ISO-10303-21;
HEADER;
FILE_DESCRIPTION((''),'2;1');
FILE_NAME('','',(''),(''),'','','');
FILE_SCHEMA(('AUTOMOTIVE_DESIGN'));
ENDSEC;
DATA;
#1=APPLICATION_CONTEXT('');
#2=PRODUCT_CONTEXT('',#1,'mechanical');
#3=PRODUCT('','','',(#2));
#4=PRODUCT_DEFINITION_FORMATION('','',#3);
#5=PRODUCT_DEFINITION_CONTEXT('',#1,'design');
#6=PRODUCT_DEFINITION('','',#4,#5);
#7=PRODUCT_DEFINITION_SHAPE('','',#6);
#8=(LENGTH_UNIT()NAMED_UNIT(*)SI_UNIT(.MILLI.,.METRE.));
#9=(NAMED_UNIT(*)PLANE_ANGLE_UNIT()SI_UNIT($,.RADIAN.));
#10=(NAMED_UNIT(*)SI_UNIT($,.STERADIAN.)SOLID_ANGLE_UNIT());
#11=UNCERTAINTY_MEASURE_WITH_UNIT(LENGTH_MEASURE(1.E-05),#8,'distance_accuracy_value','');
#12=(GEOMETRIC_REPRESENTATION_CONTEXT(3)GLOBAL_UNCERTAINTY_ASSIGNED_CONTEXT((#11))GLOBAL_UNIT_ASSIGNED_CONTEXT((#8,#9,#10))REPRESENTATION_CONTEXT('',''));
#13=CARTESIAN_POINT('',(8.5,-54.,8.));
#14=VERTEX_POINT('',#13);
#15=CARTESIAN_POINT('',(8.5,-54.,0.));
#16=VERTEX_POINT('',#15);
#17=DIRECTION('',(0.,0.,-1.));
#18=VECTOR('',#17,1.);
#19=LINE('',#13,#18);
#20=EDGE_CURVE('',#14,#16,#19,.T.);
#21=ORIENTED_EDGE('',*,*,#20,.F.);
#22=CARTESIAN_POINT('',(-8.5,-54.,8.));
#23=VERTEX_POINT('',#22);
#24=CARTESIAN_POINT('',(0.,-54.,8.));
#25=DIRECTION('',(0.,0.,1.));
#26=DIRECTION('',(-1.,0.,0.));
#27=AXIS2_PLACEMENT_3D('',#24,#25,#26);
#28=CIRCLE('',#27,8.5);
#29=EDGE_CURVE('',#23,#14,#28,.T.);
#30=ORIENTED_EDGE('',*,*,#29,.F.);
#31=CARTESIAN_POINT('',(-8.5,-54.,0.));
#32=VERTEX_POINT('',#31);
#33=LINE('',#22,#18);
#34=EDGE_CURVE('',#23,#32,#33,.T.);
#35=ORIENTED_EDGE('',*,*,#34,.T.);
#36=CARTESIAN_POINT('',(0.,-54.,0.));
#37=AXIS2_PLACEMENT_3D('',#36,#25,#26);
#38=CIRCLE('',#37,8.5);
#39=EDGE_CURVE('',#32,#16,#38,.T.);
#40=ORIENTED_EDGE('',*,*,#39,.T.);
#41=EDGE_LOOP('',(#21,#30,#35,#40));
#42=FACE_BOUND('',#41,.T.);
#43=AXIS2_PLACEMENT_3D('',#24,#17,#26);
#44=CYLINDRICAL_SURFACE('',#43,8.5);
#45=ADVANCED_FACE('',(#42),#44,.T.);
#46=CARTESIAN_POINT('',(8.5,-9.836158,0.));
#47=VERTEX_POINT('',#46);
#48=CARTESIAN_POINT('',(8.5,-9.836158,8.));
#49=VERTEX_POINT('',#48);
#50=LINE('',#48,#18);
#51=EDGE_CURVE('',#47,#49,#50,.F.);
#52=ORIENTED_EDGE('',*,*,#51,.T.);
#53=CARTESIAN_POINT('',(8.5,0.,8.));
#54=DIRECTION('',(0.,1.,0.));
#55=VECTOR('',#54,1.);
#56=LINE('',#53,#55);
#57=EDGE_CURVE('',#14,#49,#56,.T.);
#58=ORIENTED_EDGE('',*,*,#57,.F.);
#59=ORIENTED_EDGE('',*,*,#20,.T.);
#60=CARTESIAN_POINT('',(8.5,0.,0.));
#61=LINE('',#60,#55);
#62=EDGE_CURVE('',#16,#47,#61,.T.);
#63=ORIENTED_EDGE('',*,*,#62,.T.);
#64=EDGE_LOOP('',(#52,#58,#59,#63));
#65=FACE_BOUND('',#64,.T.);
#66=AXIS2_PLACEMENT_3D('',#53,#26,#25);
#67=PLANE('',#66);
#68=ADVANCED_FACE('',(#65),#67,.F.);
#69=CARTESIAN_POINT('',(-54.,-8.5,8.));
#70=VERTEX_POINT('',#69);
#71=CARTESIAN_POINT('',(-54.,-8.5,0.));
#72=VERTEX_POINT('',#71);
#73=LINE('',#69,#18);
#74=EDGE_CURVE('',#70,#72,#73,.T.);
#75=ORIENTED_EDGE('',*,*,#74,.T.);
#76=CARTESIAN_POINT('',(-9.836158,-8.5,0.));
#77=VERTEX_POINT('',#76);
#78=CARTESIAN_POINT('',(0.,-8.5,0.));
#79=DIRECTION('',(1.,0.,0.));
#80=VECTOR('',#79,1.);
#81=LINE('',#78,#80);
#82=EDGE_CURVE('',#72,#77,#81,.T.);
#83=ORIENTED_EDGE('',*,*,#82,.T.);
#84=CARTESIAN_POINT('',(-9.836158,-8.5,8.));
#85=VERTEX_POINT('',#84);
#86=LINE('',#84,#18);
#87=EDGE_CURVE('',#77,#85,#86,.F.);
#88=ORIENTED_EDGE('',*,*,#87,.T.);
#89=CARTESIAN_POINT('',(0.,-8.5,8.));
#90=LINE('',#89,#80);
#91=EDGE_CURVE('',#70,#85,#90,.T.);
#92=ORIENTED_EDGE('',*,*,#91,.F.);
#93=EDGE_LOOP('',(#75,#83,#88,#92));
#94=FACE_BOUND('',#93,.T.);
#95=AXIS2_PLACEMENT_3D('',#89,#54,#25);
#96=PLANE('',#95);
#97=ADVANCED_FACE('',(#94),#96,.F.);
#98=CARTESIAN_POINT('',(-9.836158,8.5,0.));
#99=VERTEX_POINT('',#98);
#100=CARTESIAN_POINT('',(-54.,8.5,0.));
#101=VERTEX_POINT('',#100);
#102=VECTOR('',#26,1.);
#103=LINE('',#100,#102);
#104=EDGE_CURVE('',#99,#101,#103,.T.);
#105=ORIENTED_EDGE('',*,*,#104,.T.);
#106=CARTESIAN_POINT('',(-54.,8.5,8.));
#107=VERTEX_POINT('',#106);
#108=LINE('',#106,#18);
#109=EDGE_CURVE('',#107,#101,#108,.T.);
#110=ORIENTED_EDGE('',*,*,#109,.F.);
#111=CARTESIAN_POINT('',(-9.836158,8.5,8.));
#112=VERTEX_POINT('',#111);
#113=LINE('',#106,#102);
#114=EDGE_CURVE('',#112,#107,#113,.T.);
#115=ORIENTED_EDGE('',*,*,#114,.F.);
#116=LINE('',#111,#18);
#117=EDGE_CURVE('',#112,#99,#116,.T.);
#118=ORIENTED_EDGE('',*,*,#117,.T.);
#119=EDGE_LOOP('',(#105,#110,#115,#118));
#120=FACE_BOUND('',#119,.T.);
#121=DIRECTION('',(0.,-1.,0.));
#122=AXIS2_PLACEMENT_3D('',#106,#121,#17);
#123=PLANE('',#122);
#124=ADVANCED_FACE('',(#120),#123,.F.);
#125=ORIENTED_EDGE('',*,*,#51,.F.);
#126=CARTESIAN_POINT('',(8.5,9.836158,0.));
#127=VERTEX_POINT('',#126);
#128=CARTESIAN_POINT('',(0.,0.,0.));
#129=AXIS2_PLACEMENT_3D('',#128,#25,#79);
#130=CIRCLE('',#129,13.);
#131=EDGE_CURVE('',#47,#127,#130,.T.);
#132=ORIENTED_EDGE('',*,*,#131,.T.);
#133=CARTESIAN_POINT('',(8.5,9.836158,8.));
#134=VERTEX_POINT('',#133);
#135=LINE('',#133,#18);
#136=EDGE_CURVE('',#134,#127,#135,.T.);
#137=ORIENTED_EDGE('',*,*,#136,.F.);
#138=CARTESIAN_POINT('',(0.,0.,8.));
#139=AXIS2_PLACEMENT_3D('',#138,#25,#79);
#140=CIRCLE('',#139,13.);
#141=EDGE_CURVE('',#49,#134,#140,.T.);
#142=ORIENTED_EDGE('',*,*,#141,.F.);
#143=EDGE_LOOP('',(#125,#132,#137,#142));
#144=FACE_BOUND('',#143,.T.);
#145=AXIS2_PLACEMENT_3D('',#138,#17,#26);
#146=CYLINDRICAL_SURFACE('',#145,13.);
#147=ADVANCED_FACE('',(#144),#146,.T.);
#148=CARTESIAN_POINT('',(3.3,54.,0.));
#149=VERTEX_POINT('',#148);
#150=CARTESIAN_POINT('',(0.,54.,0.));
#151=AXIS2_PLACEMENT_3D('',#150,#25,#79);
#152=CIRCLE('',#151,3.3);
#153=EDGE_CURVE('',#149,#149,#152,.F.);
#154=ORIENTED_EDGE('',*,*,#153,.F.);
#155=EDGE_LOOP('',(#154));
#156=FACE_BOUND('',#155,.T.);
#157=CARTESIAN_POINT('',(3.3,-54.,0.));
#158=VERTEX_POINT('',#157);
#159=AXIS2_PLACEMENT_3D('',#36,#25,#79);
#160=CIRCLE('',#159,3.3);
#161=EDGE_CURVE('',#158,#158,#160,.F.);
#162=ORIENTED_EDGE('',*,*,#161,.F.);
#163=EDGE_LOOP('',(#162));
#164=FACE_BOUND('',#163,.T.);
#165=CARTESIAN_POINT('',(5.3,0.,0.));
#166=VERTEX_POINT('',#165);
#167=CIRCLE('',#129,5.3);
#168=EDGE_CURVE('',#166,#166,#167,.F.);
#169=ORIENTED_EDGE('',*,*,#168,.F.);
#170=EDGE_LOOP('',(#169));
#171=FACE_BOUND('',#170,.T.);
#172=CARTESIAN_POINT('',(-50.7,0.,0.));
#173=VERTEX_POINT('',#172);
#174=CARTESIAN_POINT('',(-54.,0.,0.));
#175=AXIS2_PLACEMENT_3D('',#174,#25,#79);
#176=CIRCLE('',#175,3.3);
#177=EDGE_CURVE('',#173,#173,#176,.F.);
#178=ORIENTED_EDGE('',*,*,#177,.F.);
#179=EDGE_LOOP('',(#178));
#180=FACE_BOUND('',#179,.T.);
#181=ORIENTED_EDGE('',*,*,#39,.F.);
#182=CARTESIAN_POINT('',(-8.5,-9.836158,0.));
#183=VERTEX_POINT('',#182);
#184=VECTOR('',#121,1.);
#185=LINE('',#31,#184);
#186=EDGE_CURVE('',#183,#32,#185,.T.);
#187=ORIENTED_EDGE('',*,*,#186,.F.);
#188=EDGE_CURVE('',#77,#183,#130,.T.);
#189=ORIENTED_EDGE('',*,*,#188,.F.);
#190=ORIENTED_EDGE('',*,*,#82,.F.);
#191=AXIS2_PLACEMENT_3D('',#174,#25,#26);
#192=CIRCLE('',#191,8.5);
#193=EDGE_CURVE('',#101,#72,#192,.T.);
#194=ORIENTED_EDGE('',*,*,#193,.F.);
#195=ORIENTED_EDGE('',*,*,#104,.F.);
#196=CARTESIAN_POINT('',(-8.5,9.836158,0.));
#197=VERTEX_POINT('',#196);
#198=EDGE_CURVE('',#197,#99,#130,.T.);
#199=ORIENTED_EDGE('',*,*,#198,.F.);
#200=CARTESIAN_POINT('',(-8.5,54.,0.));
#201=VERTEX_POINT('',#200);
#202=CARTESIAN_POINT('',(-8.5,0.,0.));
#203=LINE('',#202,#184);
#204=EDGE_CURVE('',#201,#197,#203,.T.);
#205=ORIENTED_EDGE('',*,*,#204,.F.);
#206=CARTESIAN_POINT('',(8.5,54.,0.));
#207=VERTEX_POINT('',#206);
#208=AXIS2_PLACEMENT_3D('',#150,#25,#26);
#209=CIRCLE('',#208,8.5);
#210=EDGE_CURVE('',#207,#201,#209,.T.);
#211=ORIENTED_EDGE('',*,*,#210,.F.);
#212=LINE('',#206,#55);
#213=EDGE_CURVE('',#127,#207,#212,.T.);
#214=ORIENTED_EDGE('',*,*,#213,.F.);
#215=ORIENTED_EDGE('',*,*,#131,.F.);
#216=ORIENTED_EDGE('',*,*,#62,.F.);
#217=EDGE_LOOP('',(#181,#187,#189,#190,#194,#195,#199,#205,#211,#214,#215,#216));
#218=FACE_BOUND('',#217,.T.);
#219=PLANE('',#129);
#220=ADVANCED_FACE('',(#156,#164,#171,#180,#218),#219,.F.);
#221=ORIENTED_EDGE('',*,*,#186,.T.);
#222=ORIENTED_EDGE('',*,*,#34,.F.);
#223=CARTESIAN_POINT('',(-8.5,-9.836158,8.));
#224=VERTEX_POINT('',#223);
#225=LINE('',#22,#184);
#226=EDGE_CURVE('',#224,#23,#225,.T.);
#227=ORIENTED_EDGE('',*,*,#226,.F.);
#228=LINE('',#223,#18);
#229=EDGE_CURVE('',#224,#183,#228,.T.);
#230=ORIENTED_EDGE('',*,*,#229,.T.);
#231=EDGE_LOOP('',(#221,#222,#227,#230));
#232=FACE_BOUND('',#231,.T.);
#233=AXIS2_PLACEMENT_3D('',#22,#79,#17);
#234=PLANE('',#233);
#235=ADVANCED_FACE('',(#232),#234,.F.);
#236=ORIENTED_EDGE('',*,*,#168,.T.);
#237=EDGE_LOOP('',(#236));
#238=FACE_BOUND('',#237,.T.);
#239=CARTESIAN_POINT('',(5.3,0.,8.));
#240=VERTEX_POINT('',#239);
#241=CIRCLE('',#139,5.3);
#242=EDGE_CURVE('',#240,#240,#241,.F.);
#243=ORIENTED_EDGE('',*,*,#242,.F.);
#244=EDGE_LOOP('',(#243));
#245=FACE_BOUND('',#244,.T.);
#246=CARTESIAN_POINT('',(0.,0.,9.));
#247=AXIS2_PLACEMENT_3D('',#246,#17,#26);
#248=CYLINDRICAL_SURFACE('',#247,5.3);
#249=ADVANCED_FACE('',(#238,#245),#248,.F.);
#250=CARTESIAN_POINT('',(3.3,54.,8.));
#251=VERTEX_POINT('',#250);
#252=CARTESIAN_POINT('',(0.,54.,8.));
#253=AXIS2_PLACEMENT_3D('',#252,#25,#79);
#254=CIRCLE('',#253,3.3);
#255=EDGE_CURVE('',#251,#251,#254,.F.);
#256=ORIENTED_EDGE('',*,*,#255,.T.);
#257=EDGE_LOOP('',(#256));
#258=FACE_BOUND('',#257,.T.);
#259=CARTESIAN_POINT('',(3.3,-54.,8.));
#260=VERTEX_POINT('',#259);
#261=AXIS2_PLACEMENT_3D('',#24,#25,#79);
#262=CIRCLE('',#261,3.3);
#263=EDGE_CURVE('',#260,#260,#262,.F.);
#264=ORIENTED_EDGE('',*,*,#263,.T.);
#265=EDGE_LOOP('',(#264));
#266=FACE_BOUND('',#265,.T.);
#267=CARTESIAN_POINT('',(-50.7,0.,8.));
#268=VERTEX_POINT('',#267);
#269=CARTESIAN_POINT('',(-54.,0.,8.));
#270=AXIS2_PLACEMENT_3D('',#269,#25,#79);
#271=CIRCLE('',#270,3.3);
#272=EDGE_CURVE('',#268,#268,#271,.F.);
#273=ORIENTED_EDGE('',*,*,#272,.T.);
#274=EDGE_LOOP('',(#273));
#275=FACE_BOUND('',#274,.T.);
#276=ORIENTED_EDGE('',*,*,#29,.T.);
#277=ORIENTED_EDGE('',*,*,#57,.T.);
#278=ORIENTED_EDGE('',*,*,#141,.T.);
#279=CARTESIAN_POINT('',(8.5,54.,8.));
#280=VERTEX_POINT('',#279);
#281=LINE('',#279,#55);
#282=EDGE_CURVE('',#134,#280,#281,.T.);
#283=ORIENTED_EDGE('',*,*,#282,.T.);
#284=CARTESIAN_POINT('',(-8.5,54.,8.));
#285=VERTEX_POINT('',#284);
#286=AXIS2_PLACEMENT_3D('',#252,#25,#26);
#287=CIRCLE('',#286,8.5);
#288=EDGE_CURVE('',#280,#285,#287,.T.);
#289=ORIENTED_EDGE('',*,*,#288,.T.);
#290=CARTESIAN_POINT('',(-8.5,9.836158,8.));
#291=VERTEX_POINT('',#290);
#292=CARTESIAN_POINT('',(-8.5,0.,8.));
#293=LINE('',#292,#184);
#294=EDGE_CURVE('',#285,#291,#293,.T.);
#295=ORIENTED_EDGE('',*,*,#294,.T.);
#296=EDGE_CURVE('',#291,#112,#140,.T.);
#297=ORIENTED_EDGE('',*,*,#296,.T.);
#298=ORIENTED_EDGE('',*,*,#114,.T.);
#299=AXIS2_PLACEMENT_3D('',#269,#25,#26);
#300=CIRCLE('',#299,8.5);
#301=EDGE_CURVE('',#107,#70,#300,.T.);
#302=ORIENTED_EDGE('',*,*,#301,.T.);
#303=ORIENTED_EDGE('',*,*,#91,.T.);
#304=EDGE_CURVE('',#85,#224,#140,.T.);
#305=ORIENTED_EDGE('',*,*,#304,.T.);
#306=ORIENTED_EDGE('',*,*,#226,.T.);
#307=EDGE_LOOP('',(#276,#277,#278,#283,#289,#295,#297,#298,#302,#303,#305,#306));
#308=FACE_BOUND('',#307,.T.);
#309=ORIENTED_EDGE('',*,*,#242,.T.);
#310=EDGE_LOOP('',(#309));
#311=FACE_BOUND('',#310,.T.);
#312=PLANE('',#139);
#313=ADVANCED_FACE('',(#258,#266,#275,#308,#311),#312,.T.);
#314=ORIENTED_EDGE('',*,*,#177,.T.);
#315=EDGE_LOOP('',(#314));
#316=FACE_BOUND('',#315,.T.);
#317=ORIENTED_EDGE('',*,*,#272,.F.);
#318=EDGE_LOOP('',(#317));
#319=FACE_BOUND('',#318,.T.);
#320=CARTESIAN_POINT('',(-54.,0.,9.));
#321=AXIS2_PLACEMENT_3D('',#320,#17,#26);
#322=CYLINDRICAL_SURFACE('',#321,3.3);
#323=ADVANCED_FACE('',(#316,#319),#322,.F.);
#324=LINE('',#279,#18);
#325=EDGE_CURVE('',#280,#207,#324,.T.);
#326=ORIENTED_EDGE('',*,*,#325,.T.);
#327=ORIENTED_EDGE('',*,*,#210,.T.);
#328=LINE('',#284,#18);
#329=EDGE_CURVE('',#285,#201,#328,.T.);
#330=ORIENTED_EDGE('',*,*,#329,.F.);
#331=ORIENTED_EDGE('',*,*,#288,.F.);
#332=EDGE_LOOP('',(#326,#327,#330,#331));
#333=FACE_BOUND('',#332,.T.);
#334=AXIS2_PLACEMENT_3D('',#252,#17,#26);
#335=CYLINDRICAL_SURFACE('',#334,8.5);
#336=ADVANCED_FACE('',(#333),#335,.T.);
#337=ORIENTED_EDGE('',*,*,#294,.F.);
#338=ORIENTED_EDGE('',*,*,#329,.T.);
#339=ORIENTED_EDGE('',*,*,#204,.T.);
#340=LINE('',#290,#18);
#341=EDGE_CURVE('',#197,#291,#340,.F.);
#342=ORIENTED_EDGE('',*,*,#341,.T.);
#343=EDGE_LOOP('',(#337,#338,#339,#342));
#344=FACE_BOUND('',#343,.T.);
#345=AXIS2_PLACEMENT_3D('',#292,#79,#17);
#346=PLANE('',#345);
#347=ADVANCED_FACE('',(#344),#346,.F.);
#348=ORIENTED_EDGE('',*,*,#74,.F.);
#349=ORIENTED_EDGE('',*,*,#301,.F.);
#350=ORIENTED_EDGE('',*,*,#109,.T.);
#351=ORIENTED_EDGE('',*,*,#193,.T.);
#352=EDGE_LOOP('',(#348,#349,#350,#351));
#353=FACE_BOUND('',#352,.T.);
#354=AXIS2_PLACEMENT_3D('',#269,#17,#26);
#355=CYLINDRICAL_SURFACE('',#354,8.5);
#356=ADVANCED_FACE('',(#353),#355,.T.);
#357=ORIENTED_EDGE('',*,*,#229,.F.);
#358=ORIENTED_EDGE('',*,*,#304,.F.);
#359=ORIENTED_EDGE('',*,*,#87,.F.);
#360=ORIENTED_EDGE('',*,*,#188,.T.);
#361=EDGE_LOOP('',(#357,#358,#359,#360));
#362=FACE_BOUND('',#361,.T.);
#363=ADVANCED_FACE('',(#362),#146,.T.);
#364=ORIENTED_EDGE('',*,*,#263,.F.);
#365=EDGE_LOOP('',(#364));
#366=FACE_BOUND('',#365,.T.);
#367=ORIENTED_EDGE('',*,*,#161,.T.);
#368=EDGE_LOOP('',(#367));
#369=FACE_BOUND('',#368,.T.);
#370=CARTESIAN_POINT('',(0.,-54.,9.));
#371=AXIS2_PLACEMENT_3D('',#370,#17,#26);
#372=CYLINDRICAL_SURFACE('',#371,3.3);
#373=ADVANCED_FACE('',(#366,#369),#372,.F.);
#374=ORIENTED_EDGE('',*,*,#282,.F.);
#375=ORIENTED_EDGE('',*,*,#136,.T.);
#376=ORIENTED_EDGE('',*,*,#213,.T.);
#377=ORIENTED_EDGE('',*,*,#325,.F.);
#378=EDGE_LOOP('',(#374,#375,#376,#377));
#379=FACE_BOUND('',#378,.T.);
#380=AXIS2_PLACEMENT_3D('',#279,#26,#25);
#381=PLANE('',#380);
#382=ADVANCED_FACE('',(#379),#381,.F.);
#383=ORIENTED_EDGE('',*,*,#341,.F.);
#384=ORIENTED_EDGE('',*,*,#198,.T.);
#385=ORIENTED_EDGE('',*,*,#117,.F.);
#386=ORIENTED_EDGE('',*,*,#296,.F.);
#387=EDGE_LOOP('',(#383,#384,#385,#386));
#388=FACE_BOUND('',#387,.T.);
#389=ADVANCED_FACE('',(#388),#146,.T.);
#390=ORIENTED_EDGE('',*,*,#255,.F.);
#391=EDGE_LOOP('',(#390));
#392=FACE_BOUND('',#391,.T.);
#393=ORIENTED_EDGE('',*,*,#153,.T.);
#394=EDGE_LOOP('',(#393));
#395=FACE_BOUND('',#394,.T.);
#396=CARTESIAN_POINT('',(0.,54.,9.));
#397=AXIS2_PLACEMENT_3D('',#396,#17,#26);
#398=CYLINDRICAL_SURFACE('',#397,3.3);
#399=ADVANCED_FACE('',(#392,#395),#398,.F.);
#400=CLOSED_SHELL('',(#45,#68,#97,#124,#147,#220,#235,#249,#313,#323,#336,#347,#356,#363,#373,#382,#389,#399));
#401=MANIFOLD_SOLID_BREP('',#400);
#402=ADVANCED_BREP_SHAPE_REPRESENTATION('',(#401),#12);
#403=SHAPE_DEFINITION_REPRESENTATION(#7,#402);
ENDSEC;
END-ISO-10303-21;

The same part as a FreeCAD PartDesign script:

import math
import FreeCAD as App
import Part
import Sketcher

V = App.Vector

doc = App.newDocument("Part")
body = doc.addObject("PartDesign::Body", "Body")

# Sketch on XY plane
sketch1 = doc.addObject("Sketcher::SketchObject", "Sketch")
body.addObject(sketch1)
sketch1.AttachmentSupport = (doc.XY_Plane, [""])
sketch1.MapMode = "FlatFace"
sketch1.addGeometry(Part.Circle(V(0, 0, 0), V(0, 0, 1), 13), False)
sketch1.addConstraint([
    Sketcher.Constraint("Coincident", 0, 3, -1, 1),
    Sketcher.Constraint("Diameter", 0, 26.0),
])
pad1 = doc.addObject("PartDesign::Pad", "Pad")
body.addObject(pad1)
pad1.Profile = sketch1
pad1.Length = 8

# Sketch on XY plane
sketch2 = doc.addObject("Sketcher::SketchObject", "Sketch001")
body.addObject(sketch2)
sketch2.AttachmentSupport = (doc.XY_Plane, [""])
sketch2.MapMode = "FlatFace"
sketch2.addGeometry([
    Part.LineSegment(V(-8, 54, 0), V(-8, 0, 0)),
    Part.ArcOfCircle(Part.Circle(V(0, 0, 0), V(0, 0, 1), 8), math.radians(180), math.radians(360)),
    Part.LineSegment(V(8, 0, 0), V(8, 54, 0)),
    Part.ArcOfCircle(Part.Circle(V(0, 54, 0), V(0, 0, 1), 8), math.radians(0), math.radians(180)),
], False)
sketch2.addConstraint([
    Sketcher.Constraint("Tangent", 0, 2, 1, 1),
    Sketcher.Constraint("Tangent", 1, 2, 2, 1),
    Sketcher.Constraint("Tangent", 2, 2, 3, 1),
    Sketcher.Constraint("Tangent", 3, 2, 0, 1),
    Sketcher.Constraint("Vertical", 0),
    Sketcher.Constraint("Vertical", 2),
    Sketcher.Constraint("Coincident", 1, 3, -1, 1),
    Sketcher.Constraint("Radius", 1, 8.5),
    Sketcher.Constraint("DistanceY", 0, 2, 0, 1, 54.0),
])
pad2 = doc.addObject("PartDesign::Pad", "Pad001")
body.addObject(pad2)
pad2.Profile = sketch2
pad2.Length = 8

# Sketch on XY plane
sketch3 = doc.addObject("Sketcher::SketchObject", "Sketch002")
body.addObject(sketch3)
sketch3.AttachmentSupport = (doc.XY_Plane, [""])
sketch3.MapMode = "FlatFace"
sketch3.addGeometry([
    Part.LineSegment(V(-54, -8, 0), V(0, -8, 0)),
    Part.ArcOfCircle(Part.Circle(V(0, 0, 0), V(0, 0, 1), 8), math.radians(-90), math.radians(90)),
    Part.LineSegment(V(0, 8, 0), V(-54, 8, 0)),
    Part.ArcOfCircle(Part.Circle(V(-54, 0, 0), V(0, 0, 1), 8), math.radians(90), math.radians(270)),
], False)
sketch3.addConstraint([
    Sketcher.Constraint("Tangent", 0, 2, 1, 1),
    Sketcher.Constraint("Tangent", 1, 2, 2, 1),
    Sketcher.Constraint("Tangent", 2, 2, 3, 1),
    Sketcher.Constraint("Tangent", 3, 2, 0, 1),
    Sketcher.Constraint("Horizontal", 0),
    Sketcher.Constraint("Horizontal", 2),
    Sketcher.Constraint("Coincident", 1, 3, -1, 1),
    Sketcher.Constraint("Radius", 1, 8.5),
    Sketcher.Constraint("DistanceX", 0, 1, 0, 2, 54.0),
])
pad3 = doc.addObject("PartDesign::Pad", "Pad002")
body.addObject(pad3)
pad3.Profile = sketch3
pad3.Length = 8

# Sketch on XY plane
sketch4 = doc.addObject("Sketcher::SketchObject", "Sketch003")
body.addObject(sketch4)
sketch4.AttachmentSupport = (doc.XY_Plane, [""])
sketch4.MapMode = "FlatFace"
sketch4.addGeometry([
    Part.LineSegment(V(8, -54, 0), V(8, 0, 0)),
    Part.ArcOfCircle(Part.Circle(V(0, 0, 0), V(0, 0, 1), 8), math.radians(0), math.radians(180)),
    Part.LineSegment(V(-8, 0, 0), V(-8, -54, 0)),
    Part.ArcOfCircle(Part.Circle(V(0, -54, 0), V(0, 0, 1), 8), math.radians(180), math.radians(360)),
], False)
sketch4.addConstraint([
    Sketcher.Constraint("Tangent", 0, 2, 1, 1),
    Sketcher.Constraint("Tangent", 1, 2, 2, 1),
    Sketcher.Constraint("Tangent", 2, 2, 3, 1),
    Sketcher.Constraint("Tangent", 3, 2, 0, 1),
    Sketcher.Constraint("Vertical", 0),
    Sketcher.Constraint("Vertical", 2),
    Sketcher.Constraint("Coincident", 1, 3, -1, 1),
    Sketcher.Constraint("Radius", 1, 8.5),
    Sketcher.Constraint("DistanceY", 0, 1, 0, 2, 54.0),
])
pad4 = doc.addObject("PartDesign::Pad", "Pad003")
body.addObject(pad4)
pad4.Profile = sketch4
pad4.Length = 8

# Sketch on XY plane
sketch5 = doc.addObject("Sketcher::SketchObject", "Sketch004")
body.addObject(sketch5)
sketch5.AttachmentSupport = (doc.XY_Plane, [""])
sketch5.MapMode = "FlatFace"
sketch5.AttachmentOffset = App.Placement(V(0, 0, -1), App.Rotation())
sketch5.addGeometry([
    Part.Circle(V(0, 54, 0), V(0, 0, 1), 3.3),
    Part.Circle(V(-54, 0, 0), V(0, 0, 1), 3.3),
    Part.Circle(V(0, -54, 0), V(0, 0, 1), 3.3),
], False)
sketch5.addConstraint([
    Sketcher.Constraint("Equal", 0, 1),
    Sketcher.Constraint("Equal", 1, 2),
    Sketcher.Constraint("Symmetric", 0, 3, 2, 3, -1, 1),
    Sketcher.Constraint("PointOnObject", 0, 3, -2),
    Sketcher.Constraint("PointOnObject", 1, 3, -1),
    Sketcher.Constraint("Diameter", 0, 6.6),
    Sketcher.Constraint("DistanceY", -1, 1, 0, 3, 54.0),
    Sketcher.Constraint("DistanceX", 1, 3, -1, 1, 54.0),
])
pocket1 = doc.addObject("PartDesign::Pocket", "Pocket")
body.addObject(pocket1)
pocket1.Profile = sketch5
pocket1.Length = 10
pocket1.Reversed = True

# Sketch on XY plane
sketch6 = doc.addObject("Sketcher::SketchObject", "Sketch005")
body.addObject(sketch6)
sketch6.AttachmentSupport = (doc.XY_Plane, [""])
sketch6.MapMode = "FlatFace"
sketch6.AttachmentOffset = App.Placement(V(0, 0, -1), App.Rotation())
sketch6.addGeometry(Part.Circle(V(0, 0, 0), V(0, 0, 1), 5), False)
sketch6.addConstraint([
    Sketcher.Constraint("Coincident", 0, 3, -1, 1),
    Sketcher.Constraint("Diameter", 0, 10.6),
])
pocket2 = doc.addObject("PartDesign::Pocket", "Pocket001")
body.addObject(pocket2)
pocket2.Profile = sketch6
pocket2.Length = 10
pocket2.Reversed = True

doc.recompute()
